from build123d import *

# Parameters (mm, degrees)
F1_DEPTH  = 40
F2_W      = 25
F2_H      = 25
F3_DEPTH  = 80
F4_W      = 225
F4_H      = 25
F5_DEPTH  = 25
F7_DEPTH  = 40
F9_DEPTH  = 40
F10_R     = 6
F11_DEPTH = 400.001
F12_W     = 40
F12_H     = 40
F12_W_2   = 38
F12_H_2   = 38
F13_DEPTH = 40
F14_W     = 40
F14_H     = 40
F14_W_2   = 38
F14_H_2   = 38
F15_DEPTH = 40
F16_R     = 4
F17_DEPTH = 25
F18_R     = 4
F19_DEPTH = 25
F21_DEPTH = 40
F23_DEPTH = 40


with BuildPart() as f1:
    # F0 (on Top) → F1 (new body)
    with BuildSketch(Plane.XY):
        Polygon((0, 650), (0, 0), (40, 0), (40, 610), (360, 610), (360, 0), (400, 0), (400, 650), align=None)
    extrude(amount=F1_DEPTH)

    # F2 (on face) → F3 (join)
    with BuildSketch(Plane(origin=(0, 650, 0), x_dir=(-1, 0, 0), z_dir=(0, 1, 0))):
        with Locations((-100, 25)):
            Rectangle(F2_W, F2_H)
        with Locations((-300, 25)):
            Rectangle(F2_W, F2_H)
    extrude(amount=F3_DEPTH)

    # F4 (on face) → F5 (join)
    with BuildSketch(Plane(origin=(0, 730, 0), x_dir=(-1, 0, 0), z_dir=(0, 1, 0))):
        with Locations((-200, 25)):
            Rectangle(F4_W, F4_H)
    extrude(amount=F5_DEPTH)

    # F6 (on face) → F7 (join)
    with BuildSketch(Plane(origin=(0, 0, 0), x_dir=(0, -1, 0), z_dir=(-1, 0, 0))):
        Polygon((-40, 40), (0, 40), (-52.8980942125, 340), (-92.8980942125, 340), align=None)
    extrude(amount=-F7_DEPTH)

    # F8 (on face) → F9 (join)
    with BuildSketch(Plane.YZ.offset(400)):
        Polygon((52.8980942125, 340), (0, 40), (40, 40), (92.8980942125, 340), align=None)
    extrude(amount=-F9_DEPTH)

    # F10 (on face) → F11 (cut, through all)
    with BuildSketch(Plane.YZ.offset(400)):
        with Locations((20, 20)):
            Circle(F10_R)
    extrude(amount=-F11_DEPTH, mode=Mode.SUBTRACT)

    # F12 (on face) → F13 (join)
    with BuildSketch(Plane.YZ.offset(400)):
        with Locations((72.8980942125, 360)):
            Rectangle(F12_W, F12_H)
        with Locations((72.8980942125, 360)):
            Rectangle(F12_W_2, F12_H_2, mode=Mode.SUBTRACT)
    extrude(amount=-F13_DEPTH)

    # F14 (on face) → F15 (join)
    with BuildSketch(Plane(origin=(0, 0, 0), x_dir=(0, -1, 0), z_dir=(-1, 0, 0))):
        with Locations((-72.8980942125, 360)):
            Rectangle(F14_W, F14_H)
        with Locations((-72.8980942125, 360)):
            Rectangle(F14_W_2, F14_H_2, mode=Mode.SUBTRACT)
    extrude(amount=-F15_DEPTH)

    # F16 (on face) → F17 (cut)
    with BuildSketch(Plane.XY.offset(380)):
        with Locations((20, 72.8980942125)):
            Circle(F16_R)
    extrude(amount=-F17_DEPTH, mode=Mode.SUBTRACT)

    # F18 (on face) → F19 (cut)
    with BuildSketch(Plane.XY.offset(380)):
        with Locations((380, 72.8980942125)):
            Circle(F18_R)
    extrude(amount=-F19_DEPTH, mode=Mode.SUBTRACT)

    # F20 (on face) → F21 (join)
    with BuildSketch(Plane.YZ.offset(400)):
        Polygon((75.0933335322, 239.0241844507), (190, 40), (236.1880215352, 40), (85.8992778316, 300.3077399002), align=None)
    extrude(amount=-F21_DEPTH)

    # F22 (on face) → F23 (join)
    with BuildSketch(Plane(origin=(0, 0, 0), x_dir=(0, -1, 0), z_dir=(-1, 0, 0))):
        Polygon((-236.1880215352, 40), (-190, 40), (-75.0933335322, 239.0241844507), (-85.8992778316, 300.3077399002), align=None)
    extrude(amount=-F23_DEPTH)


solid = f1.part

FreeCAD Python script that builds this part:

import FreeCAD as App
import Part
import Sketcher

V = App.Vector
Q = App.Units.Quantity

doc = App.newDocument("Part")
body = doc.addObject("PartDesign::Body", "Body")

sketch1 = body.newObject("Sketcher::SketchObject", "Sketch")
sketch1.AttachmentSupport = (doc.getObject("XY_Plane"), [""])
sketch1.MapMode = "FlatFace"
sketch1.addGeometry([
    Part.LineSegment(V(0, 650, 0), V(0, 0, 0)),
    Part.LineSegment(V(0, 0, 0), V(40, 0, 0)),
    Part.LineSegment(V(40, 0, 0), V(40, 610, 0)),
    Part.LineSegment(V(40, 610, 0), V(360, 610, 0)),
    Part.LineSegment(V(360, 610, 0), V(360, 0, 0)),
    Part.LineSegment(V(360, 0, 0), V(400, 0, 0)),
    Part.LineSegment(V(400, 0, 0), V(400, 650, 0)),
    Part.LineSegment(V(400, 650, 0), V(0, 650, 0)),
], False)
sketch1.addConstraint([
    Sketcher.Constraint("Coincident", 0, 2, 1, 1),
    Sketcher.Constraint("Coincident", 1, 2, 2, 1),
    Sketcher.Constraint("Coincident", 2, 2, 3, 1),
    Sketcher.Constraint("Coincident", 3, 2, 4, 1),
    Sketcher.Constraint("Coincident", 4, 2, 5, 1),
    Sketcher.Constraint("Coincident", 5, 2, 6, 1),
    Sketcher.Constraint("Coincident", 6, 2, 7, 1),
    Sketcher.Constraint("Coincident", 7, 2, 0, 1),
    Sketcher.Constraint("Vertical", 0),
    Sketcher.Constraint("Horizontal", 1),
    Sketcher.Constraint("Vertical", 2),
    Sketcher.Constraint("Horizontal", 3),
    Sketcher.Constraint("Vertical", 4),
    Sketcher.Constraint("Horizontal", 5),
    Sketcher.Constraint("Vertical", 6),
    Sketcher.Constraint("Horizontal", 7),
    Sketcher.Constraint("Coincident", 0, 2, -1, 1),
    Sketcher.Constraint("PointOnObject", 4, 2, -1),
    Sketcher.Constraint("Equal", 1, 5),
    Sketcher.Constraint("DistanceX", 1, 1, 1, 2, 40.0),
    Sketcher.Constraint("DistanceX", 3, 1, 3, 2, 320.0),
    Sketcher.Constraint("DistanceY", 0, 2, 0, 1, 650.0),
    Sketcher.Constraint("DistanceY", 2, 1, 2, 2, 610.0),
])
pad1 = body.newObject("PartDesign::Pad", "Pad")
pad1.Profile = sketch1
pad1.Length = 40

sketch2 = body.newObject("Sketcher::SketchObject", "Sketch001")
sketch2.AttachmentSupport = (doc.getObject("XZ_Plane"), [""])
sketch2.MapMode = "FlatFace"
sketch2.AttachmentOffset = App.Placement(V(0, 0, -650), App.Rotation())
sketch2.addGeometry([
    Part.LineSegment(V(112, 38, 0), V(112, 12, 0)),
    Part.LineSegment(V(112, 12, 0), V(88, 12, 0)),
    Part.LineSegment(V(88, 12, 0), V(88, 38, 0)),
    Part.LineSegment(V(88, 38, 0), V(112, 38, 0)),
    Part.LineSegment(V(312, 38, 0), V(312, 12, 0)),
    Part.LineSegment(V(312, 12, 0), V(288, 12, 0)),
    Part.LineSegment(V(288, 12, 0), V(288, 38, 0)),
    Part.LineSegment(V(288, 38, 0), V(312, 38, 0)),
], False)
sketch2.addConstraint([
    Sketcher.Constraint("Coincident", 0, 2, 1, 1),
    Sketcher.Constraint("Coincident", 1, 2, 2, 1),
    Sketcher.Constraint("Coincident", 2, 2, 3, 1),
    Sketcher.Constraint("Coincident", 3, 2, 0, 1),
    Sketcher.Constraint("Coincident", 4, 2, 5, 1),
    Sketcher.Constraint("Coincident", 5, 2, 6, 1),
    Sketcher.Constraint("Coincident", 6, 2, 7, 1),
    Sketcher.Constraint("Coincident", 7, 2, 4, 1),
    Sketcher.Constraint("Vertical", 0),
    Sketcher.Constraint("Horizontal", 1),
    Sketcher.Constraint("Vertical", 2),
    Sketcher.Constraint("Horizontal", 3),
    Sketcher.Constraint("Vertical", 4),
    Sketcher.Constraint("Horizontal", 5),
    Sketcher.Constraint("Vertical", 6),
    Sketcher.Constraint("Horizontal", 7),
    Sketcher.Constraint("Horizontal", 1, 2, 4, 2),
    Sketcher.Constraint("Horizontal", 3, 2, 6, 2),
    Sketcher.Constraint("Equal", 3, 5),
    Sketcher.Constraint("Equal", 7, 0),
    Sketcher.Constraint("DistanceX", 1, 2, 1, 1, 25.0),
    Sketcher.Constraint("DistanceX", 0, 2, 4, 2, 200.0),
    Sketcher.Constraint("DistanceX", -1, 1, 0, 2, 112.5),
    Sketcher.Constraint("DistanceY", -1, 1, 0, 2, 12.5),
])
pad2 = body.newObject("PartDesign::Pad", "Pad001")
pad2.Profile = sketch2
pad2.Length = 80
pad2.Reversed = True

sketch3 = body.newObject("Sketcher::SketchObject", "Sketch002")
sketch3.AttachmentSupport = (doc.getObject("XZ_Plane"), [""])
sketch3.MapMode = "FlatFace"
sketch3.AttachmentOffset = App.Placement(V(0, 0, -730), App.Rotation())
sketch3.addGeometry([
    Part.LineSegment(V(312, 38, 0), V(312, 12, 0)),
    Part.LineSegment(V(312, 12, 0), V(88, 12, 0)),
    Part.LineSegment(V(88, 12, 0), V(88, 38, 0)),
    Part.LineSegment(V(88, 38, 0), V(312, 38, 0)),
], False)
sketch3.addConstraint([
    Sketcher.Constraint("Coincident", 0, 2, 1, 1),
    Sketcher.Constraint("Coincident", 1, 2, 2, 1),
    Sketcher.Constraint("Coincident", 2, 2, 3, 1),
    Sketcher.Constraint("Coincident", 3, 2, 0, 1),
    Sketcher.Constraint("Vertical", 0),
    Sketcher.Constraint("Horizontal", 1),
    Sketcher.Constraint("Vertical", 2),
    Sketcher.Constraint("Horizontal", 3),
    Sketcher.Constraint("DistanceX", 1, 2, 1, 1, 225.0),
    Sketcher.Constraint("DistanceY", 0, 2, 0, 1, 25.0),
    Sketcher.Constraint("DistanceX", -1, 1, 0, 2, 312.5),
    Sketcher.Constraint("DistanceY", -1, 1, 0, 2, 12.5),
])
pad3 = body.newObject("PartDesign::Pad", "Pad002")
pad3.Profile = sketch3
pad3.Length = 25
pad3.Reversed = True

sketch4 = body.newObject("Sketcher::SketchObject", "Sketch003")
sketch4.AttachmentSupport = (doc.getObject("YZ_Plane"), [""])
sketch4.MapMode = "FlatFace"
sketch4.addGeometry([
    Part.LineSegment(V(40, 40, 0), V(0, 40, 0)),
    Part.LineSegment(V(0, 40, 0), V(53, 340, 0)),
    Part.LineSegment(V(53, 340, 0), V(93, 340, 0)),
    Part.LineSegment(V(93, 340, 0), V(40, 40, 0)),
], False)
sketch4.addConstraint([
    Sketcher.Constraint("Coincident", 0, 2, 1, 1),
    Sketcher.Constraint("Coincident", 1, 2, 2, 1),
    Sketcher.Constraint("Coincident", 2, 2, 3, 1),
    Sketcher.Constraint("Coincident", 3, 2, 0, 1),
    Sketcher.Constraint("Horizontal", 0),
    Sketcher.Constraint("Horizontal", 2),
    Sketcher.Constraint("PointOnObject", 0, 2, -2),
    Sketcher.Constraint("Parallel", 1, 3),
    Sketcher.Constraint("DistanceX", 0, 2, 0, 1, 40.0),
    Sketcher.Constraint("Angle", 1, Q("80 deg")),
    Sketcher.Constraint("DistanceY", -1, 1, 0, 2, 40.0),
    Sketcher.Constraint("DistanceY", -1, 1, 1, 2, 340.0),
])
pad4 = body.newObject("PartDesign::Pad", "Pad003")
pad4.Profile = sketch4
pad4.Length = 40

sketch5 = body.newObject("Sketcher::SketchObject", "Sketch004")
sketch5.AttachmentSupport = (doc.getObject("YZ_Plane"), [""])
sketch5.MapMode = "FlatFace"
sketch5.AttachmentOffset = App.Placement(V(0, 0, 400), App.Rotation())
sketch5.addGeometry([
    Part.LineSegment(V(53, 340, 0), V(0, 40, 0)),
    Part.LineSegment(V(0, 40, 0), V(40, 40, 0)),
    Part.LineSegment(V(40, 40, 0), V(93, 340, 0)),
    Part.LineSegment(V(93, 340, 0), V(53, 340, 0)),
], False)
sketch5.addConstraint([
    Sketcher.Constraint("Coincident", 0, 2, 1, 1),
    Sketcher.Constraint("Coincident", 1, 2, 2, 1),
    Sketcher.Constraint("Coincident", 2, 2, 3, 1),
    Sketcher.Constraint("Coincident", 3, 2, 0, 1),
    Sketcher.Constraint("Horizontal", 1),
    Sketcher.Constraint("Horizontal", 3),
    Sketcher.Constraint("PointOnObject", 0, 2, -2),
    Sketcher.Constraint("Parallel", 0, 2),
    Sketcher.Constraint("DistanceX", 1, 1, 1, 2, 40.0),
    Sketcher.Constraint("Angle", 0, Q("-100 deg")),
    Sketcher.Constraint("DistanceY", -1, 1, 0, 2, 40.0),
    Sketcher.Constraint("DistanceY", -1, 1, 2, 2, 340.0),
])
pad5 = body.newObject("PartDesign::Pad", "Pad004")
pad5.Profile = sketch5
pad5.Length = 40
pad5.Reversed = True

sketch6 = body.newObject("Sketcher::SketchObject", "Sketch005")
sketch6.AttachmentSupport = (doc.getObject("YZ_Plane"), [""])
sketch6.MapMode = "FlatFace"
sketch6.AttachmentOffset = App.Placement(V(0, 0, 400), App.Rotation())
sketch6.addGeometry(Part.Circle(V(20, 20, 0), V(0, 0, 1), 6), False)
sketch6.addConstraint([
    Sketcher.Constraint("Diameter", 0, 12.0),
    Sketcher.Constraint("DistanceX", -1, 1, 0, 3, 20.0),
    Sketcher.Constraint("DistanceY", -1, 1, 0, 3, 20.0),
])
pocket1 = body.newObject("PartDesign::Pocket", "Pocket")
pocket1.Profile = sketch6
pocket1.Type = "ThroughAll"

sketch7 = body.newObject("Sketcher::SketchObject", "Sketch006")
sketch7.AttachmentSupport = (doc.getObject("YZ_Plane"), [""])
sketch7.MapMode = "FlatFace"
sketch7.AttachmentOffset = App.Placement(V(0, 0, 400), App.Rotation())
sketch7.addGeometry([
    Part.LineSegment(V(53, 380, 0), V(53, 340, 0)),
    Part.LineSegment(V(53, 340, 0), V(93, 340, 0)),
    Part.LineSegment(V(93, 340, 0), V(93, 380, 0)),
    Part.LineSegment(V(93, 380, 0), V(53, 380, 0)),
    Part.LineSegment(V(92, 341, 0), V(54, 341, 0)),
    Part.LineSegment(V(54, 341, 0), V(54, 379, 0)),
    Part.LineSegment(V(54, 379, 0), V(92, 379, 0)),
    Part.LineSegment(V(92, 379, 0), V(92, 341, 0)),
], False)
sketch7.addConstraint([
    Sketcher.Constraint("Coincident", 0, 2, 1, 1),
    Sketcher.Constraint("Coincident", 1, 2, 2, 1),
    Sketcher.Constraint("Coincident", 2, 2, 3, 1),
    Sketcher.Constraint("Coincident", 3, 2, 0, 1),
    Sketcher.Constraint("Coincident", 4, 2, 5, 1),
    Sketcher.Constraint("Coincident", 5, 2, 6, 1),
    Sketcher.Constraint("Coincident", 6, 2, 7, 1),
    Sketcher.Constraint("Coincident", 7, 2, 4, 1),
    Sketcher.Constraint("Vertical", 0),
    Sketcher.Constraint("Horizontal", 1),
    Sketcher.Constraint("Vertical", 2),
    Sketcher.Constraint("Horizontal", 3),
    Sketcher.Constraint("Horizontal", 4),
    Sketcher.Constraint("Vertical", 5),
    Sketcher.Constraint("Horizontal", 6),
    Sketcher.Constraint("Vertical", 7),
    Sketcher.Constraint("Equal", 3, 0),
    Sketcher.Constraint("Equal", 6, 5),
    Sketcher.Constraint("DistanceX", 1, 1, 1, 2, 40.0),
    Sketcher.Constraint("DistanceX", 4, 2, 4, 1, 38.0),
    Sketcher.Constraint("DistanceY", -1, 1, 0, 2, 340.0),
    Sketcher.Constraint("DistanceY", -1, 1, 4, 2, 341.0),
    Sketcher.Constraint("DistanceX", 0, 2, 4, 2, 1.0),
    Sketcher.Constraint("DistanceX", -1, 1, 0, 2, 52.898094),
])
pad6 = body.newObject("PartDesign::Pad", "Pad005")
pad6.Profile = sketch7
pad6.Length = 40
pad6.Reversed = True

sketch8 = body.newObject("Sketcher::SketchObject", "Sketch007")
sketch8.AttachmentSupport = (doc.getObject("YZ_Plane"), [""])
sketch8.MapMode = "FlatFace"
sketch8.addGeometry([
    Part.LineSegment(V(93, 380, 0), V(93, 340, 0)),
    Part.LineSegment(V(93, 340, 0), V(53, 340, 0)),
    Part.LineSegment(V(53, 340, 0), V(53, 380, 0)),
    Part.LineSegment(V(53, 380, 0), V(93, 380, 0)),
    Part.LineSegment(V(54, 341, 0), V(92, 341, 0)),
    Part.LineSegment(V(92, 341, 0), V(92, 379, 0)),
    Part.LineSegment(V(92, 379, 0), V(54, 379, 0)),
    Part.LineSegment(V(54, 379, 0), V(54, 341, 0)),
], False)
sketch8.addConstraint([
    Sketcher.Constraint("Coincident", 0, 2, 1, 1),
    Sketcher.Constraint("Coincident", 1, 2, 2, 1),
    Sketcher.Constraint("Coincident", 2, 2, 3, 1),
    Sketcher.Constraint("Coincident", 3, 2, 0, 1),
    Sketcher.Constraint("Coincident", 4, 2, 5, 1),
    Sketcher.Constraint("Coincident", 5, 2, 6, 1),
    Sketcher.Constraint("Coincident", 6, 2, 7, 1),
    Sketcher.Constraint("Coincident", 7, 2, 4, 1),
    Sketcher.Constraint("Vertical", 0),
    Sketcher.Constraint("Horizontal", 1),
    Sketcher.Constraint("Vertical", 2),
    Sketcher.Constraint("Horizontal", 3),
    Sketcher.Constraint("Horizontal", 4),
    Sketcher.Constraint("Vertical", 5),
    Sketcher.Constraint("Horizontal", 6),
    Sketcher.Constraint("Vertical", 7),
    Sketcher.Constraint("Equal", 3, 0),
    Sketcher.Constraint("Equal", 6, 5),
    Sketcher.Constraint("DistanceX", 1, 2, 1, 1, 40.0),
    Sketcher.Constraint("DistanceX", 4, 1, 4, 2, 38.0),
    Sketcher.Constraint("DistanceY", -1, 1, 0, 2, 340.0),
    Sketcher.Constraint("DistanceY", -1, 1, 4, 2, 341.0),
    Sketcher.Constraint("DistanceX", 4, 2, 0, 2, 1.0),
    Sketcher.Constraint("DistanceX", -1, 1, 0, 2, 92.898094),
])
pad7 = body.newObject("PartDesign::Pad", "Pad006")
pad7.Profile = sketch8
pad7.Length = 40

sketch9 = body.newObject("Sketcher::SketchObject", "Sketch008")
sketch9.AttachmentSupport = (doc.getObject("XY_Plane"), [""])
sketch9.MapMode = "FlatFace"
sketch9.AttachmentOffset = App.Placement(V(0, 0, 380), App.Rotation())
sketch9.addGeometry(Part.Circle(V(20, 72.9, 0), V(0, 0, 1), 4), False)
sketch9.addConstraint([
    Sketcher.Constraint("Diameter", 0, 8.0),
    Sketcher.Constraint("DistanceX", -1, 1, 0, 3, 20.0),
    Sketcher.Constraint("DistanceY", -1, 1, 0, 3, 72.898094),
])
pocket2 = body.newObject("PartDesign::Pocket", "Pocket001")
pocket2.Profile = sketch9
pocket2.Length = 25

sketch10 = body.newObject("Sketcher::SketchObject", "Sketch009")
sketch10.AttachmentSupport = (doc.getObject("XY_Plane"), [""])
sketch10.MapMode = "FlatFace"
sketch10.AttachmentOffset = App.Placement(V(0, 0, 380), App.Rotation())
sketch10.addGeometry(Part.Circle(V(380, 72.9, 0), V(0, 0, 1), 4), False)
sketch10.addConstraint([
    Sketcher.Constraint("Diameter", 0, 8.0),
    Sketcher.Constraint("DistanceX", -1, 1, 0, 3, 380.0),
    Sketcher.Constraint("DistanceY", -1, 1, 0, 3, 72.898094),
])
pocket3 = body.newObject("PartDesign::Pocket", "Pocket002")
pocket3.Profile = sketch10
pocket3.Length = 25

sketch11 = body.newObject("Sketcher::SketchObject", "Sketch010")
sketch11.AttachmentSupport = (doc.getObject("YZ_Plane"), [""])
sketch11.MapMode = "FlatFace"
sketch11.AttachmentOffset = App.Placement(V(0, 0, 400), App.Rotation())
sketch11.addGeometry([
    Part.LineSegment(V(75, 239, 0), V(190, 40, 0)),
    Part.LineSegment(V(190, 40, 0), V(236, 40, 0)),
    Part.LineSegment(V(236, 40, 0), V(86, 300, 0)),
    Part.LineSegment(V(86, 300, 0), V(75, 239, 0)),
], False)
sketch11.addConstraint([
    Sketcher.Constraint("Coincident", 0, 2, 1, 1),
    Sketcher.Constraint("Coincident", 1, 2, 2, 1),
    Sketcher.Constraint("Coincident", 2, 2, 3, 1),
    Sketcher.Constraint("Coincident", 3, 2, 0, 1),
    Sketcher.Constraint("Horizontal", 1),
    Sketcher.Constraint("Parallel", 0, 2),
    Sketcher.Constraint("Angle", 0, Q("-60 deg")),
    Sketcher.Constraint("Angle", 3, Q("-100 deg")),
    Sketcher.Constraint("DistanceX", -1, 1, 0, 2, 190.0),
    Sketcher.Constraint("DistanceY", -1, 1, 0, 2, 40.0),
    Sketcher.Constraint("DistanceX", 1, 1, 1, 2, 46.188022),
    Sketcher.Constraint("DistanceY", -1, 1, 2, 2, 300.30774),
])
pad8 = body.newObject("PartDesign::Pad", "Pad007")
pad8.Profile = sketch11
pad8.Length = 40
pad8.Reversed = True

sketch12 = body.newObject("Sketcher::SketchObject", "Sketch011")
sketch12.AttachmentSupport = (doc.getObject("YZ_Plane"), [""])
sketch12.MapMode = "FlatFace"
sketch12.addGeometry([
    Part.LineSegment(V(236, 40, 0), V(190, 40, 0)),
    Part.LineSegment(V(190, 40, 0), V(75, 239, 0)),
    Part.LineSegment(V(75, 239, 0), V(86, 300, 0)),
    Part.LineSegment(V(86, 300, 0), V(236, 40, 0)),
], False)
sketch12.addConstraint([
    Sketcher.Constraint("Coincident", 0, 2, 1, 1),
    Sketcher.Constraint("Coincident", 1, 2, 2, 1),
    Sketcher.Constraint("Coincident", 2, 2, 3, 1),
    Sketcher.Constraint("Coincident", 3, 2, 0, 1),
    Sketcher.Constraint("Horizontal", 0),
    Sketcher.Constraint("Parallel", 1, 3),
    Sketcher.Constraint("Angle", 1, Q("120 deg")),
    Sketcher.Constraint("Angle", 2, Q("80 deg")),
    Sketcher.Constraint("DistanceX", -1, 1, 0, 2, 190.0),
    Sketcher.Constraint("DistanceY", -1, 1, 0, 2, 40.0),
    Sketcher.Constraint("DistanceX", 0, 2, 0, 1, 46.188022),
    Sketcher.Constraint("DistanceY", -1, 1, 2, 2, 300.30774),
])
pad9 = body.newObject("PartDesign::Pad", "Pad008")
pad9.Profile = sketch12
pad9.Length = 40

doc.recompute()
